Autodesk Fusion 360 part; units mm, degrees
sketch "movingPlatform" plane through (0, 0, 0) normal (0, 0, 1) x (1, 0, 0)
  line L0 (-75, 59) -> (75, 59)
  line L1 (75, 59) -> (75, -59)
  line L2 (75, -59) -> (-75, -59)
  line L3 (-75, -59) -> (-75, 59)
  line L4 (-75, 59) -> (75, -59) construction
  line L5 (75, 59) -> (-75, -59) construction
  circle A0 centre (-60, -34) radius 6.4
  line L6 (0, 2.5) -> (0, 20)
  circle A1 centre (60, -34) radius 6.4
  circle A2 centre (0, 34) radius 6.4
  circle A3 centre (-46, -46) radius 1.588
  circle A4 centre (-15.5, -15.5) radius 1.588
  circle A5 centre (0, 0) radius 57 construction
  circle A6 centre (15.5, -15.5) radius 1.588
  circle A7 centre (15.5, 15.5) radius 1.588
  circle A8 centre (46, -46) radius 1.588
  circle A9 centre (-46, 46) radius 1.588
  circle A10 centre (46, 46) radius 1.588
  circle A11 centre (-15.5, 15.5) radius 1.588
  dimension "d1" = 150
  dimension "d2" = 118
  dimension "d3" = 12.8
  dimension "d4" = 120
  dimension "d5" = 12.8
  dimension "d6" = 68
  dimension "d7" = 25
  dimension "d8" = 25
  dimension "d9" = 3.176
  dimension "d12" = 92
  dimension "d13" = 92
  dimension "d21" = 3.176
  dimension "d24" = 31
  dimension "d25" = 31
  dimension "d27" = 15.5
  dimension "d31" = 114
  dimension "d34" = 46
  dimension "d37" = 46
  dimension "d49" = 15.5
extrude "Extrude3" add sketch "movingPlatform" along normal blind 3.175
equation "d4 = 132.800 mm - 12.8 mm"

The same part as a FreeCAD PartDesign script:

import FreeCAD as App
import Part
import Sketcher

V = App.Vector
Q = App.Units.Quantity

doc = App.newDocument("Part")
params = doc.addObject("Spreadsheet::Sheet", "Params")
for row, (alias, value) in enumerate([
    ("sketch1_diameter", "12.8 mm"),
    ("sketch1_width", "150 mm"),
    ("sketch1_height", "118 mm"),
    ("pad1_length", "3.175 mm"),
], start=1):
    params.set(f"A{row}", alias)
    params.set(f"B{row}", "=" + value)
    params.setAlias(f"B{row}", alias)

body = doc.addObject("PartDesign::Body", "Body")

# Sketch on XY plane
sketch1 = doc.addObject("Sketcher::SketchObject", "Sketch")
body.addObject(sketch1)
sketch1.AttachmentSupport = (doc.XY_Plane, [""])
sketch1.MapMode = "FlatFace"
sketch1.addGeometry([
    Part.LineSegment(V(75, 59, 0), V(-75, 59, 0)),  # 0
    Part.LineSegment(V(-75, 59, 0), V(-75, -59, 0)),  # 1
    Part.LineSegment(V(-75, -59, 0), V(75, -59, 0)),  # 2
    Part.LineSegment(V(75, -59, 0), V(75, 59, 0)),  # 3
    Part.Circle(V(-46, -46, 0), V(0, 0, 1), 1.588),  # 4
    Part.Circle(V(-60, -34, 0), V(0, 0, 1), 6.4),  # 5
    Part.Circle(V(-15.5, -15.5, 0), V(0, 0, 1), 1.588),  # 6
    Part.Circle(V(46, -46, 0), V(0, 0, 1), 1.588),  # 7
    Part.Circle(V(60, -34, 0), V(0, 0, 1), 6.4),  # 8
    Part.Circle(V(15.5, -15.5, 0), V(0, 0, 1), 1.588),  # 9
    Part.Circle(V(-15.5, 15.5, 0), V(0, 0, 1), 1.588),  # 10
    Part.Circle(V(-46, 46, 0), V(0, 0, 1), 1.588),  # 11
    Part.Circle(V(15.5, 15.5, 0), V(0, 0, 1), 1.588),  # 12
    Part.Circle(V(0, 34, 0), V(0, 0, 1), 6.4),  # 13
    Part.Circle(V(46, 46, 0), V(0, 0, 1), 1.588),  # 14
], False)
sketch1.addConstraint([
    Sketcher.Constraint("Coincident", 0, 2, 1, 1),
    Sketcher.Constraint("Coincident", 1, 2, 2, 1),
    Sketcher.Constraint("Coincident", 2, 2, 3, 1),
    Sketcher.Constraint("Coincident", 3, 2, 0, 1),
    Sketcher.Constraint("Horizontal", 0),
    Sketcher.Constraint("Vertical", 1),
    Sketcher.Constraint("Horizontal", 2),
    Sketcher.Constraint("Vertical", 3),
    Sketcher.Constraint("Equal", 4, 6),
    Sketcher.Constraint("Equal", 6, 7),
    Sketcher.Constraint("Equal", 5, 8),
    Sketcher.Constraint("Equal", 7, 9),
    Sketcher.Constraint("Equal", 9, 10),
    Sketcher.Constraint("Equal", 10, 11),
    Sketcher.Constraint("Equal", 11, 12),
    Sketcher.Constraint("Equal", 8, 13),
    Sketcher.Constraint("Equal", 12, 14),
    Sketcher.Constraint("Symmetric", 9, 3, 10, 3, -1, 1),
    Sketcher.Constraint("Symmetric", 7, 3, 11, 3, -1, 1),
    Sketcher.Constraint("Symmetric", 6, 3, 12, 3, -1, 1),
    Sketcher.Constraint("Symmetric", 4, 3, 14, 3, -1, 1),
    Sketcher.Constraint("Symmetric", 0, 2, 2, 2, -1, 1),
    Sketcher.Constraint("Symmetric", 4, 3, 7, 3, -2),
    Sketcher.Constraint("Symmetric", 5, 3, 8, 3, -2),
    Sketcher.Constraint("Symmetric", 6, 3, 9, 3, -2),
    Sketcher.Constraint("PointOnObject", 13, 3, -2),
    Sketcher.Constraint("Diameter", 5, Q("12.8 mm")),
    Sketcher.Constraint("DistanceX", 0, 2, 0, 1, Q("150 mm")),
    Sketcher.Constraint("DistanceY", 1, 2, 1, 1, Q("118 mm")),
    Sketcher.Constraint("Diameter", 4, Q("3.176 mm")),
    Sketcher.Constraint("DistanceX", 4, 3, -1, 1, Q("46 mm")),
    Sketcher.Constraint("DistanceY", 4, 3, -1, 1, Q("46 mm")),
    Sketcher.Constraint("DistanceX", 5, 3, 8, 3, Q("120 mm")),
    Sketcher.Constraint("DistanceX", 6, 3, 9, 3, Q("31 mm")),
    Sketcher.Constraint("DistanceY", 6, 3, 10, 3, Q("31 mm")),
    Sketcher.Constraint("DistanceY", 13, 3, 0, 2, Q("25 mm")),
    Sketcher.Constraint("DistanceY", 1, 2, 5, 3, Q("25 mm")),
])
sketch1.setExpression("Constraints[26]", "Params.sketch1_diameter")
sketch1.setExpression("Constraints[27]", "Params.sketch1_width")
sketch1.setExpression("Constraints[28]", "Params.sketch1_height")
pad1 = doc.addObject("PartDesign::Pad", "Pad")
body.addObject(pad1)
pad1.Profile = sketch1
pad1.setExpression("Length", "Params.pad1_length")

doc.recompute()
